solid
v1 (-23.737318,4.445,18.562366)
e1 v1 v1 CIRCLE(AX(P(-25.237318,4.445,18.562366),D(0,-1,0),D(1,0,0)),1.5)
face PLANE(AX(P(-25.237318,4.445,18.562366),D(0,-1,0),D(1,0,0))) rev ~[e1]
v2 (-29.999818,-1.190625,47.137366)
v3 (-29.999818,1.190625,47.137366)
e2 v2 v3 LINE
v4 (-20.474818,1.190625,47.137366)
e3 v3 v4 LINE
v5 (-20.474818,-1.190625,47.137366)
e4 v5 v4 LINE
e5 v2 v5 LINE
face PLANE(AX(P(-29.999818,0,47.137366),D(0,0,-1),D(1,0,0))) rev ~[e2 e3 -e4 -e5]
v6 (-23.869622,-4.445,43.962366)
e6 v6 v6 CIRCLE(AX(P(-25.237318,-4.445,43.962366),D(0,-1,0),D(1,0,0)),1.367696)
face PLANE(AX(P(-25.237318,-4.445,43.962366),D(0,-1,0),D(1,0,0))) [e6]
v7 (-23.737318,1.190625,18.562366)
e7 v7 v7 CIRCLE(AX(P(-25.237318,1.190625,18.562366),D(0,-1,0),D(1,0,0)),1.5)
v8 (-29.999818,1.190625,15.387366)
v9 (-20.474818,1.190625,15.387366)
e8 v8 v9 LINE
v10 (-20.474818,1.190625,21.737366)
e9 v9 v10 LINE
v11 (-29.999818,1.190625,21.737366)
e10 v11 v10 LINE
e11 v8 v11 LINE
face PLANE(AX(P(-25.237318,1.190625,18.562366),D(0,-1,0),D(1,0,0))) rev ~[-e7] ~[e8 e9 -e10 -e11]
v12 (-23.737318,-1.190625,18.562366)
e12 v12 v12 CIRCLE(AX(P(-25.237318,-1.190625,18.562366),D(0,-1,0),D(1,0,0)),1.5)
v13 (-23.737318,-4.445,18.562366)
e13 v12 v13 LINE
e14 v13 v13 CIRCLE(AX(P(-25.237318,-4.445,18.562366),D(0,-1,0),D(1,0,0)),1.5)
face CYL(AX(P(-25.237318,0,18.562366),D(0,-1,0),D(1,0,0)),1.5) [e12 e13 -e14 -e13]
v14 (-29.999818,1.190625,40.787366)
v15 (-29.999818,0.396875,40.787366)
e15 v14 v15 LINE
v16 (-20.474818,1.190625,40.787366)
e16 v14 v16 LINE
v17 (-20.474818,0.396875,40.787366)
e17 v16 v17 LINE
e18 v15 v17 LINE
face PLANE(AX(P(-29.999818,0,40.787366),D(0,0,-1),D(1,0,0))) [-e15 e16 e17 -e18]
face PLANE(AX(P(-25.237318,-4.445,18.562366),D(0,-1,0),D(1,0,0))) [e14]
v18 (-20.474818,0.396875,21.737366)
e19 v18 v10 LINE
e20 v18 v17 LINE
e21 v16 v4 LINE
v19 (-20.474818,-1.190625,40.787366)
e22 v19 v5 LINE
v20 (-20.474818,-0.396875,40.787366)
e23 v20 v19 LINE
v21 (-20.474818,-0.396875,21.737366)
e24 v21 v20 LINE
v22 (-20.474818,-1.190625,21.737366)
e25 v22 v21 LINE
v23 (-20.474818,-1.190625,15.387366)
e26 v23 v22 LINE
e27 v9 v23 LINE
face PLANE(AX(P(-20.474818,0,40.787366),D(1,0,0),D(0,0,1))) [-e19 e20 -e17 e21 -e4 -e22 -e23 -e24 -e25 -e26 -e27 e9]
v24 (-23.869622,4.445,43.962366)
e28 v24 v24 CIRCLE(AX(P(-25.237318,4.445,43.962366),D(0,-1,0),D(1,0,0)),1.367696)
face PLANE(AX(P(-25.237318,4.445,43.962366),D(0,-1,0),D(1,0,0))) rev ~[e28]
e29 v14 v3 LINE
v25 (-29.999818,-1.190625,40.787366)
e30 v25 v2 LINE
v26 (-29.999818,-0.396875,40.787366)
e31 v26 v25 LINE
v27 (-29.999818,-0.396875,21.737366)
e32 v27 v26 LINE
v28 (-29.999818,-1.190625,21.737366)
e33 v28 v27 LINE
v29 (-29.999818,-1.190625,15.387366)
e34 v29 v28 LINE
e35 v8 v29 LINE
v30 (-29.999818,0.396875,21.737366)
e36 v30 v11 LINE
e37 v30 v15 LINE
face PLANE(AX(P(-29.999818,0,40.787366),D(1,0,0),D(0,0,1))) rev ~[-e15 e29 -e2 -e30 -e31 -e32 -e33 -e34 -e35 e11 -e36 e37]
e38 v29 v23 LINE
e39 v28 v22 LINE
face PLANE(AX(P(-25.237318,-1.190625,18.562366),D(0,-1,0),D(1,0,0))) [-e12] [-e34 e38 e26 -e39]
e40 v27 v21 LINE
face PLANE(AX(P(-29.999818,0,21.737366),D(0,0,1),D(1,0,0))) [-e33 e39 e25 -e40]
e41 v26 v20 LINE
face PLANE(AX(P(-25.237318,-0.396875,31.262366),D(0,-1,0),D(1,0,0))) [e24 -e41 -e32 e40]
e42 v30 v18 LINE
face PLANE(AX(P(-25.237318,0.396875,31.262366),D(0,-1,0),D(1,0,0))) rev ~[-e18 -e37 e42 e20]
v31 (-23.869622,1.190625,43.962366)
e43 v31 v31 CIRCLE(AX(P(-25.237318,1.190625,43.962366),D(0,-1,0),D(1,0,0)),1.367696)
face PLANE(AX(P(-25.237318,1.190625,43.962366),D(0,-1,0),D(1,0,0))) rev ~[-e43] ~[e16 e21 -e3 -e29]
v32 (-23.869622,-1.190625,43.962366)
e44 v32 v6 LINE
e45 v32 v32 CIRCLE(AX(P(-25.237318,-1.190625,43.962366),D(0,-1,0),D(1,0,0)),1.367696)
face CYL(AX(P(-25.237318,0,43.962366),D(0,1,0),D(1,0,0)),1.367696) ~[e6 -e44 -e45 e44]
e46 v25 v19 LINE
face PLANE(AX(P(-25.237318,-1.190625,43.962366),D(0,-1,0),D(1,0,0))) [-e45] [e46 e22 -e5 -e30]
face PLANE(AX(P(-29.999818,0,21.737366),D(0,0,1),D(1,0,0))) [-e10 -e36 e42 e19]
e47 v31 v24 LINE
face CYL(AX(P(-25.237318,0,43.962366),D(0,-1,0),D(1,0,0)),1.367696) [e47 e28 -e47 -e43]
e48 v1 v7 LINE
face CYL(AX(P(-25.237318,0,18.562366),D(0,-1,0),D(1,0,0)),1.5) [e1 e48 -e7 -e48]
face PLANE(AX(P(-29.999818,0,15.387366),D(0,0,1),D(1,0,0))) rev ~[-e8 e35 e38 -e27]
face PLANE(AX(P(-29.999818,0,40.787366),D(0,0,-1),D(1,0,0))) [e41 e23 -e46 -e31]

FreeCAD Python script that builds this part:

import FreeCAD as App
import Part
import Sketcher
Q = App.Units.Quantity

doc = App.newDocument("Part")
params = doc.addObject("Spreadsheet::Sheet", "Params")
for row, (alias, value) in enumerate([
    ("sketch1_height", "0.75 in"),
    ("sketch1_width", "0.375 in"),
    ("pad1_length", "0.03125 in"),
    ("sketch2_height", "0.25 in"),
    ("sketch2_width", "0.375 in"),
    ("pad2_length", "0.09375 in"),
    ("pad3_length", "0.35 in"),
], start=1):
    params.set(f"A{row}", alias)
    params.set(f"B{row}", "=" + value)
    params.setAlias(f"B{row}", alias)

body = doc.addObject("PartDesign::Body", "Body")

# Sketch on XZ plane
sketch1 = body.newObject("Sketcher::SketchObject", "Sketch")
sketch1.AttachmentSupport = (doc.getObject("XZ_Plane"), [""])
sketch1.MapMode = "FlatFace"
sketch1.addGeometry(Part.LineSegment(App.Vector(-30, 41, 0), App.Vector(-30, 22, 0)), False)
sketch1.addGeometry(Part.LineSegment(App.Vector(-30, 22, 0), App.Vector(-20, 22, 0)), False)
sketch1.addGeometry(Part.LineSegment(App.Vector(-20, 22, 0), App.Vector(-20, 41, 0)), False)
sketch1.addGeometry(Part.LineSegment(App.Vector(-20, 41, 0), App.Vector(-30, 41, 0)), False)
sketch1.addConstraint(Sketcher.Constraint("Coincident", 0, 2, 1, 1))
sketch1.addConstraint(Sketcher.Constraint("Coincident", 1, 2, 2, 1))
sketch1.addConstraint(Sketcher.Constraint("Coincident", 2, 2, 3, 1))
sketch1.addConstraint(Sketcher.Constraint("Coincident", 3, 2, 0, 1))
sketch1.addConstraint(Sketcher.Constraint("Vertical", 0))
sketch1.addConstraint(Sketcher.Constraint("Horizontal", 1))
sketch1.addConstraint(Sketcher.Constraint("Vertical", 2))
sketch1.addConstraint(Sketcher.Constraint("Horizontal", 3))
sketch1.addConstraint(Sketcher.Constraint("DistanceY", 0, 2, 0, 1, Q("0.75 in")))
sketch1.addConstraint(Sketcher.Constraint("DistanceX", 1, 1, 1, 2, Q("0.375 in")))
sketch1.addConstraint(Sketcher.Constraint("DistanceX", 0, 2, -1, 1, 29.999818))
sketch1.addConstraint(Sketcher.Constraint("DistanceY", -1, 1, 0, 2, 21.737366))
sketch1.setExpression("Constraints[8]", "Params.sketch1_height")
sketch1.setExpression("Constraints[9]", "Params.sketch1_width")
pad1 = body.newObject("PartDesign::Pad", "Pad")
pad1.Profile = sketch1
pad1.setExpression("Length", "Params.pad1_length")
pad1.Midplane = True

# Sketch on XZ plane
sketch2 = body.newObject("Sketcher::SketchObject", "Sketch001")
sketch2.AttachmentSupport = (doc.getObject("XZ_Plane"), [""])
sketch2.MapMode = "FlatFace"
sketch2.addGeometry(Part.LineSegment(App.Vector(-30, 21.7, 0), App.Vector(-30, 15.4, 0)), False)
sketch2.addGeometry(Part.LineSegment(App.Vector(-30, 15.4, 0), App.Vector(-20.5, 15.4, 0)), False)
sketch2.addGeometry(Part.LineSegment(App.Vector(-20.5, 15.4, 0), App.Vector(-20.5, 21.7, 0)), False)
sketch2.addGeometry(Part.LineSegment(App.Vector(-20.5, 21.7, 0), App.Vector(-30, 21.7, 0)), False)
sketch2.addGeometry(Part.Circle(App.Vector(-25.2, 18.6, 0), App.Vector(0, 0, 1), 1.5), False)
sketch2.addGeometry(Part.LineSegment(App.Vector(-30, 47.1, 0), App.Vector(-30, 40.8, 0)), False)
sketch2.addGeometry(Part.LineSegment(App.Vector(-30, 40.8, 0), App.Vector(-20.5, 40.8, 0)), False)
sketch2.addGeometry(Part.LineSegment(App.Vector(-20.5, 40.8, 0), App.Vector(-20.5, 47.1, 0)), False)
sketch2.addGeometry(Part.LineSegment(App.Vector(-20.5, 47.1, 0), App.Vector(-30, 47.1, 0)), False)
sketch2.addGeometry(Part.Circle(App.Vector(-25.2, 44, 0), App.Vector(0, 0, 1), 1.4), False)
sketch2.addConstraint(Sketcher.Constraint("Coincident", 0, 2, 1, 1))
sketch2.addConstraint(Sketcher.Constraint("Coincident", 1, 2, 2, 1))
sketch2.addConstraint(Sketcher.Constraint("Coincident", 2, 2, 3, 1))
sketch2.addConstraint(Sketcher.Constraint("Coincident", 3, 2, 0, 1))
sketch2.addConstraint(Sketcher.Constraint("Coincident", 5, 2, 6, 1))
sketch2.addConstraint(Sketcher.Constraint("Coincident", 6, 2, 7, 1))
sketch2.addConstraint(Sketcher.Constraint("Coincident", 7, 2, 8, 1))
sketch2.addConstraint(Sketcher.Constraint("Coincident", 8, 2, 5, 1))
sketch2.addConstraint(Sketcher.Constraint("Vertical", 0))
sketch2.addConstraint(Sketcher.Constraint("Horizontal", 1))
sketch2.addConstraint(Sketcher.Constraint("Vertical", 2))
sketch2.addConstraint(Sketcher.Constraint("Horizontal", 3))
sketch2.addConstraint(Sketcher.Constraint("Vertical", 5))
sketch2.addConstraint(Sketcher.Constraint("Horizontal", 6))
sketch2.addConstraint(Sketcher.Constraint("Vertical", 7))
sketch2.addConstraint(Sketcher.Constraint("Horizontal", 8))
sketch2.addConstraint(Sketcher.Constraint("Vertical", 4, 3, 9, 3))
sketch2.addConstraint(Sketcher.Constraint("Vertical", 3, 2, 5, 2))
sketch2.addConstraint(Sketcher.Constraint("Vertical", 2, 2, 6, 2))
sketch2.addConstraint(Sketcher.Constraint("Equal", 2, 5))
sketch2.addConstraint(Sketcher.Constraint("DistanceY", 4, 3, 9, 3, Q("1 in")))
sketch2.addConstraint(Sketcher.Constraint("DistanceY", 0, 2, 5, 2, Q("1 in")))
sketch2.addConstraint(Sketcher.Constraint("DistanceY", 0, 2, 0, 1, Q("0.25 in")))
sketch2.addConstraint(Sketcher.Constraint("Diameter", 4, 3.0))
sketch2.addConstraint(Sketcher.Constraint("DistanceX", 1, 1, 1, 2, Q("0.375 in")))
sketch2.addConstraint(Sketcher.Constraint("Diameter", 9, 2.735392))
sketch2.addConstraint(Sketcher.Constraint("DistanceX", 0, 2, 4, 3, Q("0.1875 in")))
sketch2.addConstraint(Sketcher.Constraint("DistanceY", 0, 2, 4, 3, Q("0.125 in")))
sketch2.addConstraint(Sketcher.Constraint("DistanceX", 0, 2, -1, 1, 29.999818))
sketch2.addConstraint(Sketcher.Constraint("DistanceY", -1, 1, 4, 3, 18.562366))
sketch2.setExpression("Constraints[22]", "Params.sketch2_height")
sketch2.setExpression("Constraints[24]", "Params.sketch2_width")
pad2 = body.newObject("PartDesign::Pad", "Pad001")
pad2.Profile = sketch2
pad2.setExpression("Length", "Params.pad2_length")
pad2.Midplane = True

# Sketch on XZ plane
sketch3 = body.newObject("Sketcher::SketchObject", "Sketch002")
sketch3.AttachmentSupport = (doc.getObject("XZ_Plane"), [""])
sketch3.MapMode = "FlatFace"
sketch3.addGeometry(Part.Circle(App.Vector(-25.2, 44, 0), App.Vector(0, 0, 1), 1.4), False)
sketch3.addGeometry(Part.Circle(App.Vector(-25.2, 18.6, 0), App.Vector(0, 0, 1), 1.5), False)
sketch3.addConstraint(Sketcher.Constraint("Vertical", 0, 3, 1, 3))
sketch3.addConstraint(Sketcher.Constraint("DistanceY", 1, 3, 0, 3, Q("1 in")))
sketch3.addConstraint(Sketcher.Constraint("Diameter", 1, 3.0))
sketch3.addConstraint(Sketcher.Constraint("Diameter", 0, 2.735392))
sketch3.addConstraint(Sketcher.Constraint("DistanceX", 0, 3, -1, 1, 25.237318))
sketch3.addConstraint(Sketcher.Constraint("DistanceY", -1, 1, 0, 3, 43.962366))
pad3 = body.newObject("PartDesign::Pad", "Pad002")
pad3.Profile = sketch3
pad3.setExpression("Length", "Params.pad3_length")
pad3.Midplane = True

doc.recompute()
